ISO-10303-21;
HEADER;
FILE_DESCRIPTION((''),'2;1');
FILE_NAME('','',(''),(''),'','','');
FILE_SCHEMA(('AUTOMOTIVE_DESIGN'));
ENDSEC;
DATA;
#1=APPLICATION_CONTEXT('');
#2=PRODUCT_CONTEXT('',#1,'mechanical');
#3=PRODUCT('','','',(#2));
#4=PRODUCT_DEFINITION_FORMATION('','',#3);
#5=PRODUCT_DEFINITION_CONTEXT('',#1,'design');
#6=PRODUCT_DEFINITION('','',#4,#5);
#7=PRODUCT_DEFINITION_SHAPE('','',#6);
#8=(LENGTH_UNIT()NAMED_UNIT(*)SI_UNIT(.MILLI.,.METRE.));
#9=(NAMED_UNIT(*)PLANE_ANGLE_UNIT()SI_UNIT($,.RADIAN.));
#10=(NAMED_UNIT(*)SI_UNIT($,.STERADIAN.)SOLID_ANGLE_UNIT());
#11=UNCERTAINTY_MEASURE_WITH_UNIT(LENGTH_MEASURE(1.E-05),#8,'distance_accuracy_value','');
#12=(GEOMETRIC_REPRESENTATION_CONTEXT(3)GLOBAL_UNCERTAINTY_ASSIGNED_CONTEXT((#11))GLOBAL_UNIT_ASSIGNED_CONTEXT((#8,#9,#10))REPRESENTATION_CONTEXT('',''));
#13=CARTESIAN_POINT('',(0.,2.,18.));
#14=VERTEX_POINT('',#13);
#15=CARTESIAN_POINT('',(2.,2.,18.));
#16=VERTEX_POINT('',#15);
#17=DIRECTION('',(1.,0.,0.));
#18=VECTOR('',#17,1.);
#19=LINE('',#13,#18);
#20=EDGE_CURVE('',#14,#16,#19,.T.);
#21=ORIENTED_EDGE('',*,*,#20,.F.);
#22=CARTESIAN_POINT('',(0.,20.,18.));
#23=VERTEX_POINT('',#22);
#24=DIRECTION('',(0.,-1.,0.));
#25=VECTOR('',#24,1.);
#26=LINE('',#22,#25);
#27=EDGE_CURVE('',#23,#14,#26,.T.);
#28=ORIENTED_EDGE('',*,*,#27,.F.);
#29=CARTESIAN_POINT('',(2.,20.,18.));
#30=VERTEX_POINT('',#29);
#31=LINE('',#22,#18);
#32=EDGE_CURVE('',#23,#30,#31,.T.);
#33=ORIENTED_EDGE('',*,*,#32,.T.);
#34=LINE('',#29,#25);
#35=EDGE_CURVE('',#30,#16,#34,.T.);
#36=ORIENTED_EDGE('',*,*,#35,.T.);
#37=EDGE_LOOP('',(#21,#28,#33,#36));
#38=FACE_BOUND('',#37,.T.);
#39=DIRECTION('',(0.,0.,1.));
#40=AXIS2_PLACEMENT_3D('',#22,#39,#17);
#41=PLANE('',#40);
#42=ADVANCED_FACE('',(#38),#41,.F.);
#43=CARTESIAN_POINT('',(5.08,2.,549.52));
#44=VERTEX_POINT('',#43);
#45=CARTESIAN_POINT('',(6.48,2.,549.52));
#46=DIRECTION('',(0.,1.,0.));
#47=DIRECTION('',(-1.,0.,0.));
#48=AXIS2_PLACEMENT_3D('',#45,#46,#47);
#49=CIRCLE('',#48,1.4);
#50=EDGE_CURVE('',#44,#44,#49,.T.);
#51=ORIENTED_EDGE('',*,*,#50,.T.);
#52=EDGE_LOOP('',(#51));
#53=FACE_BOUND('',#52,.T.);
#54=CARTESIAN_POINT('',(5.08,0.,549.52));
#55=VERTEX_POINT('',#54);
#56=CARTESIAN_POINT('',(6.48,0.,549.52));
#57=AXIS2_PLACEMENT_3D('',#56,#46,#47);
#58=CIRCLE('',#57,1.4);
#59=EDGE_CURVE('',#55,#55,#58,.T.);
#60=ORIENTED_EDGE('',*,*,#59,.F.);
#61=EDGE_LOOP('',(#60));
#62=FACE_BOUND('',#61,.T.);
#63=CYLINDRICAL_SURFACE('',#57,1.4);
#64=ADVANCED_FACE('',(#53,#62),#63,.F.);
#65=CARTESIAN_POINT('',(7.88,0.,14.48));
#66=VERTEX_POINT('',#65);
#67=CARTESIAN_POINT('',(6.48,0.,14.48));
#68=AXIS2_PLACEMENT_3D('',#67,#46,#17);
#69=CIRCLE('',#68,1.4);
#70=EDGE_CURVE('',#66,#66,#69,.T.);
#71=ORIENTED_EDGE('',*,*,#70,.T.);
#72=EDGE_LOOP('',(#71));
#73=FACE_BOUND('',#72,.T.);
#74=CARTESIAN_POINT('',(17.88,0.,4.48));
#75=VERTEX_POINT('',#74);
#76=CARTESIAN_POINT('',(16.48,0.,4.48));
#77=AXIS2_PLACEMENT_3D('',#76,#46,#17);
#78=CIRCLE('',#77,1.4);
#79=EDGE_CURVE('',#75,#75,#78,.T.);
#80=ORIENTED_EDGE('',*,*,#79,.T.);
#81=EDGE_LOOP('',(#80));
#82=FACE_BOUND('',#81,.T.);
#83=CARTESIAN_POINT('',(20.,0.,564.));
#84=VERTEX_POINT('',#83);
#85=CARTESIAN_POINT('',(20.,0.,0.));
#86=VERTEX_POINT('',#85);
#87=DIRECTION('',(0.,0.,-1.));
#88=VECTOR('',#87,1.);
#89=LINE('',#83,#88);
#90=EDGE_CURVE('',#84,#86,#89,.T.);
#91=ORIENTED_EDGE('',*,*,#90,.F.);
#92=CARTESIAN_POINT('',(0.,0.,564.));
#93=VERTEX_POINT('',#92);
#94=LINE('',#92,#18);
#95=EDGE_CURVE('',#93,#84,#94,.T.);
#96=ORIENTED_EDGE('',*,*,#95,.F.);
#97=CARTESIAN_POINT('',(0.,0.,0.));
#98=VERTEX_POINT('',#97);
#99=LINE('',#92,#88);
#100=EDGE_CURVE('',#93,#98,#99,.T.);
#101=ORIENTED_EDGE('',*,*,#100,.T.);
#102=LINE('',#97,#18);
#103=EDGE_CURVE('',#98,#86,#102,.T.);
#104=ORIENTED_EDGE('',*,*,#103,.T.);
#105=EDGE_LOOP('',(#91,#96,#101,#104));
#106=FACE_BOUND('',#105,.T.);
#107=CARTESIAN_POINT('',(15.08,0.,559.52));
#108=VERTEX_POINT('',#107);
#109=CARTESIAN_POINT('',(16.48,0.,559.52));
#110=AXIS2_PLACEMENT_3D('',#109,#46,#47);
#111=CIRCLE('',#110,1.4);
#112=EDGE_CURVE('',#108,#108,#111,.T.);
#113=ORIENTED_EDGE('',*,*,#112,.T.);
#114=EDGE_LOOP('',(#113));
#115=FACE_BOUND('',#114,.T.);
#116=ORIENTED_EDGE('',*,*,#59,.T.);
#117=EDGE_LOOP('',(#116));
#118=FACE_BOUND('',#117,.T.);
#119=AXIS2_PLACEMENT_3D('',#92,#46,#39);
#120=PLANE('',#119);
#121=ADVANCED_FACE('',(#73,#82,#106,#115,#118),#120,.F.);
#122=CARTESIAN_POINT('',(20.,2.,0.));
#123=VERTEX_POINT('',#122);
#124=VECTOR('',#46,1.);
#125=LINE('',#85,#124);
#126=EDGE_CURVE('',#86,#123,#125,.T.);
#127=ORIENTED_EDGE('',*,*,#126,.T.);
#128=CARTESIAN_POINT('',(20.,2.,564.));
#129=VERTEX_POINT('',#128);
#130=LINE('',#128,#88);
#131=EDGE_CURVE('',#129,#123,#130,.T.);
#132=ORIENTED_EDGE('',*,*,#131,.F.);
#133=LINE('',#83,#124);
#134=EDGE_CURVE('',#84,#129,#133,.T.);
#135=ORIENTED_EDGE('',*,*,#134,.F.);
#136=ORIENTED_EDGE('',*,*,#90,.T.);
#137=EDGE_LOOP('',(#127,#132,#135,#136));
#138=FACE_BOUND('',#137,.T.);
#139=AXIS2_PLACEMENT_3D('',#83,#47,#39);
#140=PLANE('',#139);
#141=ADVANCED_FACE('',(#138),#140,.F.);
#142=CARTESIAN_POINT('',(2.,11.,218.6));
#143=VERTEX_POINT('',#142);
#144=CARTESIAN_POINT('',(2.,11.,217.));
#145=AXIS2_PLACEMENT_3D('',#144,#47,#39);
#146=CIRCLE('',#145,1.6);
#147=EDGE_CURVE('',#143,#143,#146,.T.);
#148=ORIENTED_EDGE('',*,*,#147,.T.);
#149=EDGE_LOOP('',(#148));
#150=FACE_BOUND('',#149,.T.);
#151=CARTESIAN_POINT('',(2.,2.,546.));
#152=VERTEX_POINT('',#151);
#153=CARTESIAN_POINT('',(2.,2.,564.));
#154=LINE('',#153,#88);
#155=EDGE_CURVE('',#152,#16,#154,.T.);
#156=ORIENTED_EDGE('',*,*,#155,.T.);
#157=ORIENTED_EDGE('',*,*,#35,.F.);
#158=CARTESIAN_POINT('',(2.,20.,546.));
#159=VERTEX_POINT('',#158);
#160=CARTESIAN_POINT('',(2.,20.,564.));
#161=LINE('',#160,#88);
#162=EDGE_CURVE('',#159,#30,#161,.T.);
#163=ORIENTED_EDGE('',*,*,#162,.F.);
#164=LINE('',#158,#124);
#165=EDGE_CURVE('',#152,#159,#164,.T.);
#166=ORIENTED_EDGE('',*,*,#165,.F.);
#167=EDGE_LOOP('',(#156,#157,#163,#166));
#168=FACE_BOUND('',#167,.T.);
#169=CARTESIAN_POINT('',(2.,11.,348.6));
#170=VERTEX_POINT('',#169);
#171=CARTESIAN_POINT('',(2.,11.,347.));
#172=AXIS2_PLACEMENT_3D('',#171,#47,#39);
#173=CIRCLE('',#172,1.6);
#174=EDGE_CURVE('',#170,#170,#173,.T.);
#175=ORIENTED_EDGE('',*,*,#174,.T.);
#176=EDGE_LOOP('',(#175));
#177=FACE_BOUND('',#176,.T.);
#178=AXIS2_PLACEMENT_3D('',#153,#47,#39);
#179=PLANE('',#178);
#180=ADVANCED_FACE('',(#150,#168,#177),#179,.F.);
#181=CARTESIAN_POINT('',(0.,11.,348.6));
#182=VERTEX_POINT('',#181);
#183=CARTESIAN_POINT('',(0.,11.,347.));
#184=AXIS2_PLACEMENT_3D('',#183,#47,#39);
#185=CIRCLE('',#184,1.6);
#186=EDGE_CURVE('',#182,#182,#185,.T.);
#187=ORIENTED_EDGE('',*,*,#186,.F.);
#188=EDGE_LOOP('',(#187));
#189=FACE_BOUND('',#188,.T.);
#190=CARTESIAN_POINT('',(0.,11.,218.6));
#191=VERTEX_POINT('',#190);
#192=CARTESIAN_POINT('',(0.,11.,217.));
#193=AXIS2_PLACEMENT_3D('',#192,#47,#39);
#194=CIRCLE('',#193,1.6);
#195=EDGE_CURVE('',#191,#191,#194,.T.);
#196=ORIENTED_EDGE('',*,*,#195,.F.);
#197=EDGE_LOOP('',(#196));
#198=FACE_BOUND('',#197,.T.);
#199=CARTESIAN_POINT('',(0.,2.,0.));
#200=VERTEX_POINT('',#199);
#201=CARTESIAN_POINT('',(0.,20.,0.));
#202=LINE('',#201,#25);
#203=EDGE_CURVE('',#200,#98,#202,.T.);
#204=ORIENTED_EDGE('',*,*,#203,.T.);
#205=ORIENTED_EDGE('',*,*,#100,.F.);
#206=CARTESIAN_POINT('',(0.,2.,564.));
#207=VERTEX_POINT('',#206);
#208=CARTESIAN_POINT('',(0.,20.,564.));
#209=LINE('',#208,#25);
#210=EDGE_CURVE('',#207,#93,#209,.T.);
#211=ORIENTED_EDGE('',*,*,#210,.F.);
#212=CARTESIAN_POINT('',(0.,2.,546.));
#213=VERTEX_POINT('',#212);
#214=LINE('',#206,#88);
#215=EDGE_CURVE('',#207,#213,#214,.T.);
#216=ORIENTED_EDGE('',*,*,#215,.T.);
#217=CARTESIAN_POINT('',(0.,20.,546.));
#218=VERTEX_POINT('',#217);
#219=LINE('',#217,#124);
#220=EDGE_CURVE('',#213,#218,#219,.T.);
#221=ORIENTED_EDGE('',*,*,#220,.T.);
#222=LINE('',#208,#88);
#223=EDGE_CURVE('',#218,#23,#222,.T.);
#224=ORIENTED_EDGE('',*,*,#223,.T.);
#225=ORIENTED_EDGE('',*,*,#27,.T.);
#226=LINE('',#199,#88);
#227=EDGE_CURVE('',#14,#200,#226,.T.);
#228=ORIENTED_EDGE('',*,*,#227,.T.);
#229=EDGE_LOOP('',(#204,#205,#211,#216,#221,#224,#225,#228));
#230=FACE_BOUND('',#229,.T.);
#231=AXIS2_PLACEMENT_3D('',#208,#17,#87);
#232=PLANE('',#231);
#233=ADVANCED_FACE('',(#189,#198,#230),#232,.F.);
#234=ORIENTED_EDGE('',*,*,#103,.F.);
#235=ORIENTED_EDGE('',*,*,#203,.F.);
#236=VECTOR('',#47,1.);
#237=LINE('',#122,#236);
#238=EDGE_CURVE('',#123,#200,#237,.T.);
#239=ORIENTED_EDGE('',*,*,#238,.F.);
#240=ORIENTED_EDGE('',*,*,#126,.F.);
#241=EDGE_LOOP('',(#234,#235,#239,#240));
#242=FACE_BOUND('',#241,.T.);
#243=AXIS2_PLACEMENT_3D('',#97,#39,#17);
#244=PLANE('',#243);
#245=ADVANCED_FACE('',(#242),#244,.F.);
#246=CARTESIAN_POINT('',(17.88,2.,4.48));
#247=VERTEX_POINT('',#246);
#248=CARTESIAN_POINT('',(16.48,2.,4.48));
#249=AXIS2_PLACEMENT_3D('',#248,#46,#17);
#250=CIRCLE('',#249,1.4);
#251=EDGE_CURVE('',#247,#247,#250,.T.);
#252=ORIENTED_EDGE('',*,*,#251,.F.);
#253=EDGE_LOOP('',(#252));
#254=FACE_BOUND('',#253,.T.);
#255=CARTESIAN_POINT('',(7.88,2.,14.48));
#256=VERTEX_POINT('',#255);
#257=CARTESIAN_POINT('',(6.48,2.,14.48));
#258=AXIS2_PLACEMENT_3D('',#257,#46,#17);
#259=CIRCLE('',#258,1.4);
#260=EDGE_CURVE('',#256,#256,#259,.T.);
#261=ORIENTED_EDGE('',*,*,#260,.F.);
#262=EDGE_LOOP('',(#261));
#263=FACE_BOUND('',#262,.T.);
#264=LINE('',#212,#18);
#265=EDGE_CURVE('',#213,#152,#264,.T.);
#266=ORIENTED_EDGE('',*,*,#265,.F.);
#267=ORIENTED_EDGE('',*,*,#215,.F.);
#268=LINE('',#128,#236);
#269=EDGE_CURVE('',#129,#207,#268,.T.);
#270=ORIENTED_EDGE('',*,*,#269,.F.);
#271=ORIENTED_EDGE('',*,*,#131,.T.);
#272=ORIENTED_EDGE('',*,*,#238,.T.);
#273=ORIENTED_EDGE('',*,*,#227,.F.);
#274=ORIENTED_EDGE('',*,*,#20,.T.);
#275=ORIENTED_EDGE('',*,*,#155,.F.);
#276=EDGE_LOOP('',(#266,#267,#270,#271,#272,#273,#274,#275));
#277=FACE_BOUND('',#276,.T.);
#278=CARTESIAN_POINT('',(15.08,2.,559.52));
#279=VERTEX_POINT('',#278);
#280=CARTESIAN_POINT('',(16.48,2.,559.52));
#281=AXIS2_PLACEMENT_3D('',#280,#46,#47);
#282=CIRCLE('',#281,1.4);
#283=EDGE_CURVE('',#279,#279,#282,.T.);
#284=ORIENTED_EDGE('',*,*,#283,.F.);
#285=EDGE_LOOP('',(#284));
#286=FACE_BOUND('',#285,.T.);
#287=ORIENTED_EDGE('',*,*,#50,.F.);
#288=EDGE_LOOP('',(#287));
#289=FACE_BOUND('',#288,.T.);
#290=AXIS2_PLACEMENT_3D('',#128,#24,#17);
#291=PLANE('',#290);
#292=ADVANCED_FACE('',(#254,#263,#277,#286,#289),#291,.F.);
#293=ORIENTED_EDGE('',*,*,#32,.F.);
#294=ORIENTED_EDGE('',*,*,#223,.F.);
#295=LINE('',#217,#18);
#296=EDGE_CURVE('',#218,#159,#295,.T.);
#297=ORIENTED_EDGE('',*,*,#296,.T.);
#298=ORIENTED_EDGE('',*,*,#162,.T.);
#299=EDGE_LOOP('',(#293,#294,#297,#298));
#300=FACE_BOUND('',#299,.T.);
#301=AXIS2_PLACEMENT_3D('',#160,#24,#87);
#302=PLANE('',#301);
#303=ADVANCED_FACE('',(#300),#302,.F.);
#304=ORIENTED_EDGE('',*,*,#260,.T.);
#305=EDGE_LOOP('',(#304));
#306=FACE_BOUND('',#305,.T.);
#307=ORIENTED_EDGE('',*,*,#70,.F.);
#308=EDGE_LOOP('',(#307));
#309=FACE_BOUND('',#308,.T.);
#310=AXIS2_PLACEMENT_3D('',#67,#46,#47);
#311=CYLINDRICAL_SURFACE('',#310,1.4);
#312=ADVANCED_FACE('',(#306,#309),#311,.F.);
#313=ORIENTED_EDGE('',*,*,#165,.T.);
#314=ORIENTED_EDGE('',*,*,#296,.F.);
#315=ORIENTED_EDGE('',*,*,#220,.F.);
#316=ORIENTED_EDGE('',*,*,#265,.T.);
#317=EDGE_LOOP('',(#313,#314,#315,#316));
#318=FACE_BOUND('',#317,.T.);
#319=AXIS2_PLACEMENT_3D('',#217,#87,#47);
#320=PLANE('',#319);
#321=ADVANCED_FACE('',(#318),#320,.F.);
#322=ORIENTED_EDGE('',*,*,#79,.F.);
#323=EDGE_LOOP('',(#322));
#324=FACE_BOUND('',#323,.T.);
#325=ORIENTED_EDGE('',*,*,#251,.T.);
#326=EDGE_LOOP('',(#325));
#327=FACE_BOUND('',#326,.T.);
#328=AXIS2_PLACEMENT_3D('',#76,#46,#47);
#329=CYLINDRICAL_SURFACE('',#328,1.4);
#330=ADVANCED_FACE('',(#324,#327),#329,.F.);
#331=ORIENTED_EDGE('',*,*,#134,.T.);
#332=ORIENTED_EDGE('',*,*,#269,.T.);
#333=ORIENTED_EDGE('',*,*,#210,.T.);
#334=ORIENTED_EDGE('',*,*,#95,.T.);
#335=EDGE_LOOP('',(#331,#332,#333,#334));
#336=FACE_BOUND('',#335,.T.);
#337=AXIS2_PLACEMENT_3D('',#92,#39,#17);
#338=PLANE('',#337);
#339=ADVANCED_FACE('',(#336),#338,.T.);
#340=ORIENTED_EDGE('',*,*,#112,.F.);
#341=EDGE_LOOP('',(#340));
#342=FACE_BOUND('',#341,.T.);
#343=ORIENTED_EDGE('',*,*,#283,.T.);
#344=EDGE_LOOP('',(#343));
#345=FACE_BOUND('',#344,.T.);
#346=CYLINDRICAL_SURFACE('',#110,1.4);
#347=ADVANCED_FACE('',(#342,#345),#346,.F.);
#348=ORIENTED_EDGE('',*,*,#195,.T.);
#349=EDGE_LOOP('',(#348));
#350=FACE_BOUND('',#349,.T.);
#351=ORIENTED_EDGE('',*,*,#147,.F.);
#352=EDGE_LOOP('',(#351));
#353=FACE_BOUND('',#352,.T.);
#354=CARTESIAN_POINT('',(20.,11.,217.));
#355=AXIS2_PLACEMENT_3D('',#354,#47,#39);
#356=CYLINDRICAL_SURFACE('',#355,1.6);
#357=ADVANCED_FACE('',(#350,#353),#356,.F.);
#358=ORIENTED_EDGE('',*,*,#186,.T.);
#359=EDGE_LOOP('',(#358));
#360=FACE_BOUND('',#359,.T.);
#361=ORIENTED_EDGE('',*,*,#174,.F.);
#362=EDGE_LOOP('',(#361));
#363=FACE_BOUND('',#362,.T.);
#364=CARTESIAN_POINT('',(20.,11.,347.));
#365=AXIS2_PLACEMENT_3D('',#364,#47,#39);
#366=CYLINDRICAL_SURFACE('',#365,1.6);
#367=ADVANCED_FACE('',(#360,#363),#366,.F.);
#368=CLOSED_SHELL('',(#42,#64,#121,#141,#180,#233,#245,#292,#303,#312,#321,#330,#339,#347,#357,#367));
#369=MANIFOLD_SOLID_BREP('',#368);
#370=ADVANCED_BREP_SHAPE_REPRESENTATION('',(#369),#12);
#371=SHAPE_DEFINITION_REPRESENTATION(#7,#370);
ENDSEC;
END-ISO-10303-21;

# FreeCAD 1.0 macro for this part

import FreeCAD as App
import Part
import Sketcher

doc = App.newDocument("Part")
body = doc.addObject("PartDesign::Body", "Body")

sketch1 = body.newObject("Sketcher::SketchObject", "Sketch")
sketch1.AttachmentSupport = (doc.getObject("XY_Plane"), [""])
sketch1.MapMode = "FlatFace"
sketch1.addGeometry(Part.LineSegment(App.Vector(0, 0, 0), App.Vector(20, 0, 0)), False)
sketch1.addGeometry(Part.LineSegment(App.Vector(20, 0, 0), App.Vector(20, 2, 0)), False)
sketch1.addGeometry(Part.LineSegment(App.Vector(20, 2, 0), App.Vector(2, 2, 0)), False)
sketch1.addGeometry(Part.LineSegment(App.Vector(2, 2, 0), App.Vector(2, 20, 0)), False)
sketch1.addGeometry(Part.LineSegment(App.Vector(2, 20, 0), App.Vector(0, 20, 0)), False)
sketch1.addGeometry(Part.LineSegment(App.Vector(0, 20, 0), App.Vector(0, 0, 0)), False)
sketch1.addConstraint(Sketcher.Constraint("Coincident", 0, 2, 1, 1))
sketch1.addConstraint(Sketcher.Constraint("Coincident", 1, 2, 2, 1))
sketch1.addConstraint(Sketcher.Constraint("Coincident", 2, 2, 3, 1))
sketch1.addConstraint(Sketcher.Constraint("Coincident", 3, 2, 4, 1))
sketch1.addConstraint(Sketcher.Constraint("Coincident", 4, 2, 5, 1))
sketch1.addConstraint(Sketcher.Constraint("Coincident", 5, 2, 0, 1))
sketch1.addConstraint(Sketcher.Constraint("Horizontal", 0))
sketch1.addConstraint(Sketcher.Constraint("Vertical", 1))
sketch1.addConstraint(Sketcher.Constraint("Horizontal", 2))
sketch1.addConstraint(Sketcher.Constraint("Vertical", 3))
sketch1.addConstraint(Sketcher.Constraint("Horizontal", 4))
sketch1.addConstraint(Sketcher.Constraint("Vertical", 5))
sketch1.addConstraint(Sketcher.Constraint("Coincident", 5, 2, -1, 1))
sketch1.addConstraint(Sketcher.Constraint("Equal", 4, 1))
sketch1.addConstraint(Sketcher.Constraint("Equal", 2, 3))
sketch1.addConstraint(Sketcher.Constraint("DistanceX", 0, 1, 0, 2, 20.0))
sketch1.addConstraint(Sketcher.Constraint("DistanceX", 2, 2, 2, 1, 18.0))
pad1 = body.newObject("PartDesign::Pad", "Pad")
pad1.Profile = sketch1
pad1.Length = 564

sketch2 = body.newObject("Sketcher::SketchObject", "Sketch001")
sketch2.AttachmentSupport = (doc.getObject("YZ_Plane"), [""])
sketch2.MapMode = "FlatFace"
sketch2.AttachmentOffset = App.Placement(App.Vector(0, 0, 2), App.Rotation())
sketch2.addGeometry(Part.LineSegment(App.Vector(20, 564, 0), App.Vector(2, 564, 0)), False)
sketch2.addGeometry(Part.LineSegment(App.Vector(2, 564, 0), App.Vector(2, 546, 0)), False)
sketch2.addGeometry(Part.LineSegment(App.Vector(2, 546, 0), App.Vector(20, 546, 0)), False)
sketch2.addGeometry(Part.LineSegment(App.Vector(20, 546, 0), App.Vector(20, 564, 0)), False)
sketch2.addGeometry(Part.LineSegment(App.Vector(20, 18, 0), App.Vector(2, 18, 0)), False)
sketch2.addGeometry(Part.LineSegment(App.Vector(2, 18, 0), App.Vector(2, 0, 0)), False)
sketch2.addGeometry(Part.LineSegment(App.Vector(2, 0, 0), App.Vector(20, 0, 0)), False)
sketch2.addGeometry(Part.LineSegment(App.Vector(20, 0, 0), App.Vector(20, 18, 0)), False)
sketch2.addConstraint(Sketcher.Constraint("Coincident", 0, 2, 1, 1))
sketch2.addConstraint(Sketcher.Constraint("Coincident", 1, 2, 2, 1))
sketch2.addConstraint(Sketcher.Constraint("Coincident", 2, 2, 3, 1))
sketch2.addConstraint(Sketcher.Constraint("Coincident", 3, 2, 0, 1))
sketch2.addConstraint(Sketcher.Constraint("Coincident", 4, 2, 5, 1))
sketch2.addConstraint(Sketcher.Constraint("Coincident", 5, 2, 6, 1))
sketch2.addConstraint(Sketcher.Constraint("Coincident", 6, 2, 7, 1))
sketch2.addConstraint(Sketcher.Constraint("Coincident", 7, 2, 4, 1))
sketch2.addConstraint(Sketcher.Constraint("Horizontal", 0))
sketch2.addConstraint(Sketcher.Constraint("Vertical", 1))
sketch2.addConstraint(Sketcher.Constraint("Horizontal", 2))
sketch2.addConstraint(Sketcher.Constraint("Vertical", 3))
sketch2.addConstraint(Sketcher.Constraint("Horizontal", 4))
sketch2.addConstraint(Sketcher.Constraint("Vertical", 5))
sketch2.addConstraint(Sketcher.Constraint("Horizontal", 6))
sketch2.addConstraint(Sketcher.Constraint("Vertical", 7))
sketch2.addConstraint(Sketcher.Constraint("PointOnObject", 5, 2, -1))
sketch2.addConstraint(Sketcher.Constraint("Vertical", 1, 2, 4, 2))
sketch2.addConstraint(Sketcher.Constraint("Vertical", 3, 2, 6, 2))
sketch2.addConstraint(Sketcher.Constraint("Equal", 6, 1))
sketch2.addConstraint(Sketcher.Constraint("Equal", 3, 5))
sketch2.addConstraint(Sketcher.Constraint("DistanceX", 0, 2, 0, 1, 18.0))
sketch2.addConstraint(Sketcher.Constraint("DistanceX", -1, 1, 0, 2, 2.0))
sketch2.addConstraint(Sketcher.Constraint("DistanceY", -1, 1, 0, 2, 564.0))
pocket1 = body.newObject("PartDesign::Pocket", "Pocket")
pocket1.Profile = sketch2
pocket1.Type = "ThroughAll"

sketch3 = body.newObject("Sketcher::SketchObject", "Sketch002")
sketch3.AttachmentSupport = (doc.getObject("XZ_Plane"), [""])
sketch3.MapMode = "FlatFace"
sketch3.AttachmentOffset = App.Placement(App.Vector(0, 0, -2), App.Rotation())
sketch3.addGeometry(Part.Circle(App.Vector(6.5, 549.5, 0), App.Vector(0, 0, 1), 1.4), False)
sketch3.addGeometry(Part.Circle(App.Vector(6.5, 14.5, 0), App.Vector(0, 0, 1), 1.4), False)
sketch3.addGeometry(Part.Circle(App.Vector(16.5, 559.5, 0), App.Vector(0, 0, 1), 1.4), False)
sketch3.addGeometry(Part.Circle(App.Vector(16.5, 4.5, 0), App.Vector(0, 0, 1), 1.4), False)
sketch3.addConstraint(Sketcher.Constraint("Equal", 0, 1))
sketch3.addConstraint(Sketcher.Constraint("Equal", 1, 2))
sketch3.addConstraint(Sketcher.Constraint("Equal", 2, 3))
sketch3.addConstraint(Sketcher.Constraint("Vertical", 0, 3, 1, 3))
sketch3.addConstraint(Sketcher.Constraint("Vertical", 2, 3, 3, 3))
sketch3.addConstraint(Sketcher.Constraint("Diameter", 0, 2.8))
sketch3.addConstraint(Sketcher.Constraint("DistanceX", 0, 3, 2, 3, 10.0))
sketch3.addConstraint(Sketcher.Constraint("DistanceY", 0, 3, 2, 3, 10.0))
sketch3.addConstraint(Sketcher.Constraint("DistanceY", 3, 3, 1, 3, 10.0))
sketch3.addConstraint(Sketcher.Constraint("DistanceX", -1, 1, 0, 3, 6.48))
sketch3.addConstraint(Sketcher.Constraint("DistanceY", -1, 1, 0, 3, 549.52))
sketch3.addConstraint(Sketcher.Constraint("DistanceY", -1, 1, 1, 3, 14.48))
pocket2 = body.newObject("PartDesign::Pocket", "Pocket001")
pocket2.Profile = sketch3
pocket2.Type = "ThroughAll"
pocket2.Reversed = True

sketch4 = body.newObject("Sketcher::SketchObject", "Sketch003")
sketch4.AttachmentSupport = (doc.getObject("YZ_Plane"), [""])
sketch4.MapMode = "FlatFace"
sketch4.addGeometry(Part.Circle(App.Vector(11, 217, 0), App.Vector(0, 0, 1), 1.6), False)
sketch4.addGeometry(Part.Circle(App.Vector(11, 347, 0), App.Vector(0, 0, 1), 1.6), False)
sketch4.addConstraint(Sketcher.Constraint("Equal", 0, 1))
sketch4.addConstraint(Sketcher.Constraint("Vertical", 0, 3, 1, 3))
sketch4.addConstraint(Sketcher.Constraint("Diameter", 0, 3.2))
sketch4.addConstraint(Sketcher.Constraint("DistanceX", -1, 1, 0, 3, 11.0))
sketch4.addConstraint(Sketcher.Constraint("DistanceY", -1, 1, 0, 3, 217.0))
sketch4.addConstraint(Sketcher.Constraint("DistanceY", -1, 1, 1, 3, 347.0))
pocket3 = body.newObject("PartDesign::Pocket", "Pocket002")
pocket3.Profile = sketch4
pocket3.Type = "ThroughAll"
pocket3.Reversed = True

doc.recompute()
